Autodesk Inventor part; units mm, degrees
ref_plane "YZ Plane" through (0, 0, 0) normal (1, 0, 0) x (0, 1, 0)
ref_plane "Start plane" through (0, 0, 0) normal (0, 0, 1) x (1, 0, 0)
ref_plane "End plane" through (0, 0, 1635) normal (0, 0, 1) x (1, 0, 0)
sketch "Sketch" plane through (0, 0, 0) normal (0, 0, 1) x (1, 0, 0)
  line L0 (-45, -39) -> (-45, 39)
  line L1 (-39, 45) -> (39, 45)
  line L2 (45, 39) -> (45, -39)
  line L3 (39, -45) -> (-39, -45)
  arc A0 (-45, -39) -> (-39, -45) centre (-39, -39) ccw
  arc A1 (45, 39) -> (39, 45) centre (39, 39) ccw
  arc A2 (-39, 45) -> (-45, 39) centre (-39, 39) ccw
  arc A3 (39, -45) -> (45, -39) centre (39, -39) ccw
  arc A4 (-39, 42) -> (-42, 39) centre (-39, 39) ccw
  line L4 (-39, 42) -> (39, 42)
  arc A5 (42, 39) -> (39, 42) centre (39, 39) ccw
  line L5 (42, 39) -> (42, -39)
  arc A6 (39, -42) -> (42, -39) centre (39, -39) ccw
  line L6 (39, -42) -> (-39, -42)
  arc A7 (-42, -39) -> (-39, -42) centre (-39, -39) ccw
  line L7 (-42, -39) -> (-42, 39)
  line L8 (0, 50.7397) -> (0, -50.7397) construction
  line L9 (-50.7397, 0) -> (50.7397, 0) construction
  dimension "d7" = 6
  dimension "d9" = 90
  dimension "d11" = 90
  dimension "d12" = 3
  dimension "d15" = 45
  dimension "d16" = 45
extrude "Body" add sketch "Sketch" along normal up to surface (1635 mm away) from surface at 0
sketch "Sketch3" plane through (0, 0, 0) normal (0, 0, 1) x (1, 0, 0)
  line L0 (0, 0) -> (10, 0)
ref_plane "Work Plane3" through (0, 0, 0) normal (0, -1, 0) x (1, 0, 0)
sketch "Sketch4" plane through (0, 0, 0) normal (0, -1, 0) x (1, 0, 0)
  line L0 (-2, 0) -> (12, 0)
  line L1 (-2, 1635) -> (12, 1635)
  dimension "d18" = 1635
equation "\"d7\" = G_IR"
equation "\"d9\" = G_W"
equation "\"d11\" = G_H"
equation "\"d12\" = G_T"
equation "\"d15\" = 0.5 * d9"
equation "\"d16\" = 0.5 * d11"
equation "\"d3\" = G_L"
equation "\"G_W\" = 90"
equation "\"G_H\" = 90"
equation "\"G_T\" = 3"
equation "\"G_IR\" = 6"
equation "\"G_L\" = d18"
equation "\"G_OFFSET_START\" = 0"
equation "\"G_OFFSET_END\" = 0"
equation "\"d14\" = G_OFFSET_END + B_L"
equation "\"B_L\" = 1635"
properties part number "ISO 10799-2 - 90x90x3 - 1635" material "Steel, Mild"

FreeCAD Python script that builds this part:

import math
import FreeCAD as App
import Part
import Sketcher

V = App.Vector
Q = App.Units.Quantity

doc = App.newDocument("Part")
params = doc.addObject("Spreadsheet::Sheet", "Params")
for row, (alias, value) in enumerate([
    ("sketch1_radius", "6 mm"),
    ("sketch1_radius2", "3 mm"),
    ("pad1_length", "1635 mm"),
], start=1):
    params.set(f"A{row}", alias)
    params.set(f"B{row}", "=" + value)
    params.setAlias(f"B{row}", alias)

body = doc.addObject("PartDesign::Body", "Body")

# Sketch on XY plane
sketch1 = body.newObject("Sketcher::SketchObject", "Sketch")
sketch1.AttachmentSupport = (doc.getObject("XY_Plane"), [""])
sketch1.MapMode = "FlatFace"
sketch1.addGeometry(Part.LineSegment(V(-45, 39, 0), V(-45, -39, 0)), False)
sketch1.addGeometry(Part.ArcOfCircle(Part.Circle(V(-39, -39, 0), V(0, 0, 1), 6), math.radians(180), math.radians(270)), False)
sketch1.addGeometry(Part.LineSegment(V(-39, -45, 0), V(39, -45, 0)), False)
sketch1.addGeometry(Part.ArcOfCircle(Part.Circle(V(39, -39, 0), V(0, 0, 1), 6), math.radians(-90), math.radians(0)), False)
sketch1.addGeometry(Part.LineSegment(V(45, -39, 0), V(45, 39, 0)), False)
sketch1.addGeometry(Part.ArcOfCircle(Part.Circle(V(39, 39, 0), V(0, 0, 1), 6), math.radians(0), math.radians(90)), False)
sketch1.addGeometry(Part.LineSegment(V(39, 45, 0), V(-39, 45, 0)), False)
sketch1.addGeometry(Part.ArcOfCircle(Part.Circle(V(-39, 39, 0), V(0, 0, 1), 6), math.radians(90), math.radians(180)), False)
sketch1.addGeometry(Part.ArcOfCircle(Part.Circle(V(-39, 39, 0), V(0, 0, 1), 3), math.radians(90), math.radians(180)), False)
sketch1.addGeometry(Part.LineSegment(V(-39, 42, 0), V(39, 42, 0)), False)
sketch1.addGeometry(Part.ArcOfCircle(Part.Circle(V(39, 39, 0), V(0, 0, 1), 3), math.radians(0), math.radians(90)), False)
sketch1.addGeometry(Part.LineSegment(V(42, 39, 0), V(42, -39, 0)), False)
sketch1.addGeometry(Part.ArcOfCircle(Part.Circle(V(39, -39, 0), V(0, 0, 1), 3), math.radians(-90), math.radians(0)), False)
sketch1.addGeometry(Part.LineSegment(V(39, -42, 0), V(-39, -42, 0)), False)
sketch1.addGeometry(Part.ArcOfCircle(Part.Circle(V(-39, -39, 0), V(0, 0, 1), 3), math.radians(180), math.radians(270)), False)
sketch1.addGeometry(Part.LineSegment(V(-42, -39, 0), V(-42, 39, 0)), False)
sketch1.addConstraint(Sketcher.Constraint("Tangent", 0, 2, 1, 1))
sketch1.addConstraint(Sketcher.Constraint("Tangent", 1, 2, 2, 1))
sketch1.addConstraint(Sketcher.Constraint("Tangent", 2, 2, 3, 1))
sketch1.addConstraint(Sketcher.Constraint("Tangent", 3, 2, 4, 1))
sketch1.addConstraint(Sketcher.Constraint("Tangent", 4, 2, 5, 1))
sketch1.addConstraint(Sketcher.Constraint("Tangent", 5, 2, 6, 1))
sketch1.addConstraint(Sketcher.Constraint("Tangent", 6, 2, 7, 1))
sketch1.addConstraint(Sketcher.Constraint("Tangent", 7, 2, 0, 1))
sketch1.addConstraint(Sketcher.Constraint("Tangent", 8, 1, 9, 1))
sketch1.addConstraint(Sketcher.Constraint("Tangent", 9, 2, 10, 2))
sketch1.addConstraint(Sketcher.Constraint("Tangent", 10, 1, 11, 1))
sketch1.addConstraint(Sketcher.Constraint("Tangent", 11, 2, 12, 2))
sketch1.addConstraint(Sketcher.Constraint("Tangent", 12, 1, 13, 1))
sketch1.addConstraint(Sketcher.Constraint("Tangent", 13, 2, 14, 2))
sketch1.addConstraint(Sketcher.Constraint("Tangent", 14, 1, 15, 1))
sketch1.addConstraint(Sketcher.Constraint("Tangent", 15, 2, 8, 2))
sketch1.addConstraint(Sketcher.Constraint("Vertical", 0))
sketch1.addConstraint(Sketcher.Constraint("Horizontal", 2))
sketch1.addConstraint(Sketcher.Constraint("Vertical", 4))
sketch1.addConstraint(Sketcher.Constraint("Horizontal", 6))
sketch1.addConstraint(Sketcher.Constraint("Horizontal", 9))
sketch1.addConstraint(Sketcher.Constraint("Vertical", 11))
sketch1.addConstraint(Sketcher.Constraint("Horizontal", 13))
sketch1.addConstraint(Sketcher.Constraint("Vertical", 15))
sketch1.addConstraint(Sketcher.Constraint("Coincident", 8, 3, 7, 3))
sketch1.addConstraint(Sketcher.Constraint("Coincident", 10, 3, 5, 3))
sketch1.addConstraint(Sketcher.Constraint("Coincident", 12, 3, 3, 3))
sketch1.addConstraint(Sketcher.Constraint("Equal", 1, 3))
sketch1.addConstraint(Sketcher.Constraint("Equal", 3, 5))
sketch1.addConstraint(Sketcher.Constraint("Equal", 5, 7))
sketch1.addConstraint(Sketcher.Constraint("Equal", 12, 14))
sketch1.addConstraint(Sketcher.Constraint("Symmetric", 1, 3, 5, 3, -1, 1))
sketch1.addConstraint(Sketcher.Constraint("Equal", 13, 0))
sketch1.addConstraint(Sketcher.Constraint("Radius", 1, Q("6 mm")))
sketch1.addConstraint(Sketcher.Constraint("Radius", 8, Q("3 mm")))
sketch1.addConstraint(Sketcher.Constraint("DistanceX", 0, 2, -1, 1, Q("45 mm")))
sketch1.setExpression("Constraints[33]", "Params.sketch1_radius")
sketch1.setExpression("Constraints[34]", "Params.sketch1_radius2")
pad1 = body.newObject("PartDesign::Pad", "Pad")
pad1.Profile = sketch1
pad1.setExpression("Length", "Params.pad1_length")

doc.recompute()
